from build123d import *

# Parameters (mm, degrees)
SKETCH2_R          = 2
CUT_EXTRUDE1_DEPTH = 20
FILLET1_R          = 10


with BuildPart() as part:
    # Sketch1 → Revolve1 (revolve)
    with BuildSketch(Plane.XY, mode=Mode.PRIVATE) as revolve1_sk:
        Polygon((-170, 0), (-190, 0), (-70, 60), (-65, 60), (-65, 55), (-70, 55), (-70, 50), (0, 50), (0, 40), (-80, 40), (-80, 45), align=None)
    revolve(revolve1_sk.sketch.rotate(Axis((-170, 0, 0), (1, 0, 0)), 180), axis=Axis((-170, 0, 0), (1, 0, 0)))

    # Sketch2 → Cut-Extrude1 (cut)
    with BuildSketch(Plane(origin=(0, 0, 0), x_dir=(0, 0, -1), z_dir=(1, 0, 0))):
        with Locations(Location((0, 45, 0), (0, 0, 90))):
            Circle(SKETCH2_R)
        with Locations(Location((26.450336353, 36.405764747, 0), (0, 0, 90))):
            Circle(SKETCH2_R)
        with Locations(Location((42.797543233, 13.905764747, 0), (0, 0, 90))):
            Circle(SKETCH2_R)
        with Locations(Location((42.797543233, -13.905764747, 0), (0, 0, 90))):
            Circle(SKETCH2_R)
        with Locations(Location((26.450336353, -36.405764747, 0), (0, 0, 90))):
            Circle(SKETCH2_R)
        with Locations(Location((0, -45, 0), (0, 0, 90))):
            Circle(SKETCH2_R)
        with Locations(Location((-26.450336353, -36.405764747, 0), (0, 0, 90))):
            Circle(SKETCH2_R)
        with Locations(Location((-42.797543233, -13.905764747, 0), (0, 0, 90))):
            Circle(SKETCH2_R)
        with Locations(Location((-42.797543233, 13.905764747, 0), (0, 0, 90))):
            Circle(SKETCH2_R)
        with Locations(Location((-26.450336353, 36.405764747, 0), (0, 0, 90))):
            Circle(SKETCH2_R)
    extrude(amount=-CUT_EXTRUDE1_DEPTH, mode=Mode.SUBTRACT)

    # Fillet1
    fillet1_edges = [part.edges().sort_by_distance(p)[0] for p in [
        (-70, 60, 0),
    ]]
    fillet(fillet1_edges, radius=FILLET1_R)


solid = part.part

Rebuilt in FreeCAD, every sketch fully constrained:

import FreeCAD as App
import Part
import Sketcher

V = App.Vector


def edges_at(feature, points):
    """Names of the edges that pass closest to the given points."""
    edges = feature.Shape.Edges
    near = lambda p: min(range(len(edges)), key=lambda i: edges[i].distToShape(Part.Vertex(*p))[0])
    return sorted({f"Edge{near(p) + 1}" for p in points})

doc = App.newDocument("Part")
params = doc.addObject("Spreadsheet::Sheet", "Params")
for row, (alias, value) in enumerate([
    ("sketch1_width", "20 mm"),
    ("sketch1_width2", "80 mm"),
    ("sketch1_width3", "70 mm"),
    ("sketch1_width4", "5 mm"),
    ("sketch1_height", "10 mm"),
    ("revolution_angle", "360 deg"),
    ("sketch2_diameter", "4 mm"),
    ("pocket1_length", "20 mm"),
    ("fillet_radius", "10 mm"),
], start=1):
    params.set(f"A{row}", alias)
    params.set(f"B{row}", "=" + value)
    params.setAlias(f"B{row}", alias)

body = doc.addObject("PartDesign::Body", "Body")

sketch1 = doc.addObject("Sketcher::SketchObject", "Sketch")
body.addObject(sketch1)
sketch1.AttachmentSupport = (doc.XY_Plane, [""])
sketch1.MapMode = "FlatFace"
sketch1.addGeometry(Part.LineSegment(V(-190, 0, 0), V(-170, 0, 0)), False)
sketch1.addGeometry(Part.LineSegment(V(-170, 0, 0), V(-80, 45, 0)), False)
sketch1.addGeometry(Part.LineSegment(V(-80, 45, 0), V(-80, 40, 0)), False)
sketch1.addGeometry(Part.LineSegment(V(-80, 40, 0), V(0, 40, 0)), False)
sketch1.addGeometry(Part.LineSegment(V(0, 40, 0), V(0, 50, 0)), False)
sketch1.addGeometry(Part.LineSegment(V(0, 50, 0), V(-70, 50, 0)), False)
sketch1.addGeometry(Part.LineSegment(V(-70, 50, 0), V(-70, 55, 0)), False)
sketch1.addGeometry(Part.LineSegment(V(-70, 55, 0), V(-65, 55, 0)), False)
sketch1.addGeometry(Part.LineSegment(V(-65, 55, 0), V(-65, 60, 0)), False)
sketch1.addGeometry(Part.LineSegment(V(-65, 60, 0), V(-70, 60, 0)), False)
sketch1.addGeometry(Part.LineSegment(V(-70, 60, 0), V(-190, 0, 0)), False)
sketch1.addConstraint(Sketcher.Constraint("Coincident", 0, 2, 1, 1))
sketch1.addConstraint(Sketcher.Constraint("Coincident", 1, 2, 2, 1))
sketch1.addConstraint(Sketcher.Constraint("Coincident", 2, 2, 3, 1))
sketch1.addConstraint(Sketcher.Constraint("Coincident", 3, 2, 4, 1))
sketch1.addConstraint(Sketcher.Constraint("Coincident", 4, 2, 5, 1))
sketch1.addConstraint(Sketcher.Constraint("Coincident", 5, 2, 6, 1))
sketch1.addConstraint(Sketcher.Constraint("Coincident", 6, 2, 7, 1))
sketch1.addConstraint(Sketcher.Constraint("Coincident", 7, 2, 8, 1))
sketch1.addConstraint(Sketcher.Constraint("Coincident", 8, 2, 9, 1))
sketch1.addConstraint(Sketcher.Constraint("Coincident", 9, 2, 10, 1))
sketch1.addConstraint(Sketcher.Constraint("Coincident", 10, 2, 0, 1))
sketch1.addConstraint(Sketcher.Constraint("Horizontal", 0))
sketch1.addConstraint(Sketcher.Constraint("Vertical", 2))
sketch1.addConstraint(Sketcher.Constraint("Horizontal", 3))
sketch1.addConstraint(Sketcher.Constraint("Vertical", 4))
sketch1.addConstraint(Sketcher.Constraint("Horizontal", 5))
sketch1.addConstraint(Sketcher.Constraint("Vertical", 6))
sketch1.addConstraint(Sketcher.Constraint("Horizontal", 7))
sketch1.addConstraint(Sketcher.Constraint("Vertical", 8))
sketch1.addConstraint(Sketcher.Constraint("Horizontal", 9))
sketch1.addConstraint(Sketcher.Constraint("PointOnObject", 0, 2, -1))
sketch1.addConstraint(Sketcher.Constraint("PointOnObject", 3, 2, -2))
sketch1.addConstraint(Sketcher.Constraint("Parallel", 1, 10))
sketch1.addConstraint(Sketcher.Constraint("Vertical", 6, 2, 9, 2))
sketch1.addConstraint(Sketcher.Constraint("Equal", 9, 2))
sketch1.addConstraint(Sketcher.Constraint("Equal", 2, 6))
sketch1.addConstraint(Sketcher.Constraint("Equal", 6, 8))
sketch1.addConstraint(Sketcher.Constraint("DistanceX", 0, 1, 0, 2, 20.0))
sketch1.addConstraint(Sketcher.Constraint("DistanceX", 3, 1, 3, 2, 80.0))
sketch1.addConstraint(Sketcher.Constraint("DistanceX", 5, 2, 5, 1, 70.0))
sketch1.addConstraint(Sketcher.Constraint("DistanceX", 7, 1, 7, 2, 5.0))
sketch1.addConstraint(Sketcher.Constraint("DistanceY", 4, 1, 4, 2, 10.0))
sketch1.addConstraint(Sketcher.Constraint("DistanceX", 0, 2, -1, 1, 170.0))
sketch1.setExpression("Constraints[27]", "Params.sketch1_width")
sketch1.setExpression("Constraints[28]", "Params.sketch1_width2")
sketch1.setExpression("Constraints[29]", "Params.sketch1_width3")
sketch1.setExpression("Constraints[30]", "Params.sketch1_width4")
sketch1.setExpression("Constraints[31]", "Params.sketch1_height")
revolution = doc.addObject("PartDesign::Revolution", "Revolution")
body.addObject(revolution)
revolution.Profile = sketch1
revolution.ReferenceAxis = (sketch1, ["H_Axis"])
revolution.setExpression("Angle", "Params.revolution_angle")

sketch2 = doc.addObject("Sketcher::SketchObject", "Sketch001")
body.addObject(sketch2)
sketch2.AttachmentSupport = (doc.YZ_Plane, [""])
sketch2.MapMode = "FlatFace"
sketch2.addGeometry(Part.Circle(V(45, 0, 0), V(0, 0, 1), 2), False)
sketch2.addGeometry(Part.Circle(V(36.4, -26.5, 0), V(0, 0, 1), 2), False)
sketch2.addGeometry(Part.Circle(V(13.9, -42.8, 0), V(0, 0, 1), 2), False)
sketch2.addGeometry(Part.Circle(V(-13.9, -42.8, 0), V(0, 0, 1), 2), False)
sketch2.addGeometry(Part.Circle(V(-36.4, -26.5, 0), V(0, 0, 1), 2), False)
sketch2.addGeometry(Part.Circle(V(-45, 0, 0), V(0, 0, 1), 2), False)
sketch2.addGeometry(Part.Circle(V(-36.4, 26.5, 0), V(0, 0, 1), 2), False)
sketch2.addGeometry(Part.Circle(V(-13.9, 42.8, 0), V(0, 0, 1), 2), False)
sketch2.addGeometry(Part.Circle(V(13.9, 42.8, 0), V(0, 0, 1), 2), False)
sketch2.addGeometry(Part.Circle(V(36.4, 26.5, 0), V(0, 0, 1), 2), False)
sketch2.addConstraint(Sketcher.Constraint("Equal", 0, 1))
sketch2.addConstraint(Sketcher.Constraint("Equal", 1, 2))
sketch2.addConstraint(Sketcher.Constraint("Equal", 2, 3))
sketch2.addConstraint(Sketcher.Constraint("Equal", 3, 4))
sketch2.addConstraint(Sketcher.Constraint("Equal", 4, 5))
sketch2.addConstraint(Sketcher.Constraint("Equal", 5, 6))
sketch2.addConstraint(Sketcher.Constraint("Equal", 6, 7))
sketch2.addConstraint(Sketcher.Constraint("Equal", 7, 8))
sketch2.addConstraint(Sketcher.Constraint("Equal", 8, 9))
sketch2.addConstraint(Sketcher.Constraint("Symmetric", 0, 3, 5, 3, -1, 1))
sketch2.addConstraint(Sketcher.Constraint("Symmetric", 1, 3, 6, 3, -1, 1))
sketch2.addConstraint(Sketcher.Constraint("Symmetric", 2, 3, 7, 3, -1, 1))
sketch2.addConstraint(Sketcher.Constraint("Symmetric", 3, 3, 8, 3, -1, 1))
sketch2.addConstraint(Sketcher.Constraint("Symmetric", 4, 3, 9, 3, -1, 1))
sketch2.addConstraint(Sketcher.Constraint("Symmetric", 2, 3, 3, 3, -2))
sketch2.addConstraint(Sketcher.Constraint("Symmetric", 1, 3, 4, 3, -2))
sketch2.addConstraint(Sketcher.Constraint("PointOnObject", 0, 3, -1))
sketch2.addConstraint(Sketcher.Constraint("Diameter", 0, 4.0))
sketch2.addConstraint(Sketcher.Constraint("DistanceX", -1, 1, 0, 3, 45.0))
sketch2.addConstraint(Sketcher.Constraint("DistanceX", 2, 3, 1, 3, 22.5))
sketch2.addConstraint(Sketcher.Constraint("DistanceX", 3, 3, 2, 3, 27.811529))
sketch2.addConstraint(Sketcher.Constraint("DistanceY", 3, 3, 6, 3, 69.24788))
sketch2.addConstraint(Sketcher.Constraint("DistanceY", 1, 3, -1, 1, 26.450336))
sketch2.setExpression("Constraints[17]", "Params.sketch2_diameter")
pocket1 = doc.addObject("PartDesign::Pocket", "Pocket")
body.addObject(pocket1)
pocket1.Profile = sketch2
pocket1.setExpression("Length", "Params.pocket1_length")
doc.recompute()

fillet = doc.addObject("PartDesign::Fillet", "Fillet")
body.addObject(fillet)
fillet.Base = (pocket1, edges_at(pocket1, [(-70, 60, 0)]))
fillet.setExpression("Radius", "Params.fillet_radius")

doc.recompute()
